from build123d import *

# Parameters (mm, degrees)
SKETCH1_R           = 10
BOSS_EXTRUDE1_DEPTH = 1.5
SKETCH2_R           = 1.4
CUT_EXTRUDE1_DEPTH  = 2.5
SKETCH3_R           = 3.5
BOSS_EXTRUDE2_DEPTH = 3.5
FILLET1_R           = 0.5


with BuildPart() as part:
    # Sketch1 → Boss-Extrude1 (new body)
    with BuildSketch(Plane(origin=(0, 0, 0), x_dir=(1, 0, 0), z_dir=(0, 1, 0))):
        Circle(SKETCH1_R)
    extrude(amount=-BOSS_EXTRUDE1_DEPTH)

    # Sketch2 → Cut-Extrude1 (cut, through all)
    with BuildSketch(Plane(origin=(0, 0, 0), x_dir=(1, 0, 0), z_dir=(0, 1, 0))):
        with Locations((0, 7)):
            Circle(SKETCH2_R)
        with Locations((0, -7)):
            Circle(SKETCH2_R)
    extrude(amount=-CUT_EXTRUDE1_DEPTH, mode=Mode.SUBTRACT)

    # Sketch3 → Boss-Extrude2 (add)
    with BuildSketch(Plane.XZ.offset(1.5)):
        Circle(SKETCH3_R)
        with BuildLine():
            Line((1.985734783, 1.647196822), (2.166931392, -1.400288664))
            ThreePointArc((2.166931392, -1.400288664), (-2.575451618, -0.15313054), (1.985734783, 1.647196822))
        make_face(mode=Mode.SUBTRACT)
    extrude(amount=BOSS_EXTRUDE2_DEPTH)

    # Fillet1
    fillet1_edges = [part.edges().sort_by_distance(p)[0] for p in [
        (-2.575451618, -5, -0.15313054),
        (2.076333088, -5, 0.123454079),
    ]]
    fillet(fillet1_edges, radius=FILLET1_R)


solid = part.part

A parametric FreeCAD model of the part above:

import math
import FreeCAD as App
import Part
import Sketcher
from FreeCAD import Vector


def edges_at(feature, points):
    """Names of the edges that pass closest to the given points."""
    edges = feature.Shape.Edges
    near = lambda p: min(range(len(edges)), key=lambda i: edges[i].distToShape(Part.Vertex(*p))[0])
    return sorted({f"Edge{near(p) + 1}" for p in points})

doc = App.newDocument("Part")
body = doc.addObject("PartDesign::Body", "Body")

sketch1 = doc.addObject("Sketcher::SketchObject", "Sketch")
body.addObject(sketch1)
sketch1.AttachmentSupport = (doc.XZ_Plane, [""])
sketch1.MapMode = "FlatFace"
sketch1.addGeometry(Part.Circle(Vector(0, 0, 0), Vector(0, 0, 1), 10), False)
sketch1.addConstraint(Sketcher.Constraint("Coincident", 0, 3, -1, 1))
sketch1.addConstraint(Sketcher.Constraint("Diameter", 0, 20.0))
pad1 = doc.addObject("PartDesign::Pad", "Pad")
body.addObject(pad1)
pad1.Profile = sketch1
pad1.Length = 1.5

sketch2 = doc.addObject("Sketcher::SketchObject", "Sketch001")
body.addObject(sketch2)
sketch2.AttachmentSupport = (doc.XZ_Plane, [""])
sketch2.MapMode = "FlatFace"
sketch2.addGeometry(Part.Circle(Vector(0, -7, 0), Vector(0, 0, 1), 1.4), False)
sketch2.addGeometry(Part.Circle(Vector(0, 7, 0), Vector(0, 0, 1), 1.4), False)
sketch2.addConstraint(Sketcher.Constraint("Equal", 0, 1))
sketch2.addConstraint(Sketcher.Constraint("Symmetric", 0, 3, 1, 3, -1, 1))
sketch2.addConstraint(Sketcher.Constraint("PointOnObject", 0, 3, -2))
sketch2.addConstraint(Sketcher.Constraint("Diameter", 0, 2.8))
sketch2.addConstraint(Sketcher.Constraint("DistanceY", 0, 3, -1, 1, 7.0))
pocket1 = doc.addObject("PartDesign::Pocket", "Pocket")
body.addObject(pocket1)
pocket1.Profile = sketch2
pocket1.Type = "ThroughAll"
pocket1.Reversed = True

sketch3 = doc.addObject("Sketcher::SketchObject", "Sketch002")
body.addObject(sketch3)
sketch3.AttachmentSupport = (doc.XZ_Plane, [""])
sketch3.MapMode = "FlatFace"
sketch3.AttachmentOffset = App.Placement(Vector(0, 0, 1.5), App.Rotation())
sketch3.addGeometry(Part.Circle(Vector(0, 0, 0), Vector(0, 0, 1), 3.5), False)
sketch3.addGeometry(Part.ArcOfCircle(Part.Circle(Vector(0, 0, 0), Vector(0, 0, 1), 2.6), math.radians(40), math.radians(327)), False)
sketch3.addGeometry(Part.LineSegment(Vector(2, 1.6, 0), Vector(2.2, -1.4, 0)), False)
sketch3.addConstraint(Sketcher.Constraint("Coincident", 1, 1, 2, 1))
sketch3.addConstraint(Sketcher.Constraint("Coincident", 2, 2, 1, 2))
sketch3.addConstraint(Sketcher.Constraint("Coincident", 0, 3, -1, 1))
sketch3.addConstraint(Sketcher.Constraint("Coincident", 1, 3, -1, 1))
sketch3.addConstraint(Sketcher.Constraint("Diameter", 0, 7.0))
sketch3.addConstraint(Sketcher.Constraint("Radius", 1, 2.58))
sketch3.addConstraint(Sketcher.Constraint("DistanceX", -1, 1, 2, 2, 2.166931))
sketch3.addConstraint(Sketcher.Constraint("Distance", 2, 3.052868))
pad2 = doc.addObject("PartDesign::Pad", "Pad001")
body.addObject(pad2)
pad2.Profile = sketch3
pad2.Length = 3.5
doc.recompute()

fillet = doc.addObject("PartDesign::Fillet", "Fillet")
body.addObject(fillet)
fillet.Base = (pad2, edges_at(pad2, [(-2.575, -5, -0.153), (2.076, -5, 0.123)]))
fillet.Radius = 0.5

doc.recompute()
